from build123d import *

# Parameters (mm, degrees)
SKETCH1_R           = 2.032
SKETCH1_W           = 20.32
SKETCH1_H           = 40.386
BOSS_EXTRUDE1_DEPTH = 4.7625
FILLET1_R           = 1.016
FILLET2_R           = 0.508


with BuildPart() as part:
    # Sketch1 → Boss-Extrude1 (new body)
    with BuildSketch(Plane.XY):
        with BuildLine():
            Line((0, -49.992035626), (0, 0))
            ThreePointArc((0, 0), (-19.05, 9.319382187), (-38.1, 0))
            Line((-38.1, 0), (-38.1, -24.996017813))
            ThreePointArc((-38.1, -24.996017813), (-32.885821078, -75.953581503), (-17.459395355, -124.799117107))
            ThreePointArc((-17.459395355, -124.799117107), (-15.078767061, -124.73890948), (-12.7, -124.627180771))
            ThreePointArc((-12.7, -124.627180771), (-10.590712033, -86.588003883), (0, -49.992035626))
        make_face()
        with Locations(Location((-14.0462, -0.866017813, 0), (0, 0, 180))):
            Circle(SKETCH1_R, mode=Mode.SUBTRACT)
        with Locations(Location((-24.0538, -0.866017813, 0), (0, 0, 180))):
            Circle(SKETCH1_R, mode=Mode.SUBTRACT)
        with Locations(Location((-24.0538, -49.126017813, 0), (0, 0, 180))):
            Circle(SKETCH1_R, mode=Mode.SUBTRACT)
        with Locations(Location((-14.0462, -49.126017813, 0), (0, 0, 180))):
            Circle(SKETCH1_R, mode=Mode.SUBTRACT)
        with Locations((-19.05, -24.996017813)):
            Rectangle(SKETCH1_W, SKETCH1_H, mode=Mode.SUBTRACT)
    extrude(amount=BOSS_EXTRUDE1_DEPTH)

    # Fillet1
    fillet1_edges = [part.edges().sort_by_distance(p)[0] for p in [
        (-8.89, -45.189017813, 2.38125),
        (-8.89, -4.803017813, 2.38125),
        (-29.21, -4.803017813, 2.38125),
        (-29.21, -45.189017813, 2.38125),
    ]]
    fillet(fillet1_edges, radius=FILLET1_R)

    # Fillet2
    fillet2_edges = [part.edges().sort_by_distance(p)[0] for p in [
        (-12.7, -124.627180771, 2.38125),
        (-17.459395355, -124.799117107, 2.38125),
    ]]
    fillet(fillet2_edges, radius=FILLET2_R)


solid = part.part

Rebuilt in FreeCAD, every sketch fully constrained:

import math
import FreeCAD as App
import Part
import Sketcher
Q = App.Units.Quantity


def edges_at(feature, points):
    """Names of the edges that pass closest to the given points."""
    edges = feature.Shape.Edges
    near = lambda p: min(range(len(edges)), key=lambda i: edges[i].distToShape(Part.Vertex(*p))[0])
    return sorted({f"Edge{near(p) + 1}" for p in points})

doc = App.newDocument("Part")
body = doc.addObject("PartDesign::Body", "Body")

sketch1 = doc.addObject("Sketcher::SketchObject", "Sketch")
body.addObject(sketch1)
sketch1.AttachmentSupport = (doc.XY_Plane, [""])
sketch1.MapMode = "FlatFace"
sketch1.addGeometry(Part.LineSegment(App.Vector(0, -50, 0), App.Vector(0, 0, 0)), False)
sketch1.addGeometry(Part.ArcOfCircle(Part.Circle(App.Vector(-19.1, -14.8, 0), App.Vector(0, 0, 1), 24.1), math.radians(38), math.radians(142)), False)
sketch1.addGeometry(Part.LineSegment(App.Vector(-38.1, 0, 0), App.Vector(-38.1, -25, 0)), False)
sketch1.addGeometry(Part.ArcOfCircle(Part.Circle(App.Vector(213.5, -25, 0), App.Vector(0, 0, 1), 251.6), math.radians(180), math.radians(203)), False)
sketch1.addGeometry(Part.ArcOfCircle(Part.Circle(App.Vector(-19.1, -14.8, 0), App.Vector(0, 0, 1), 110), math.radians(-89.17), math.radians(-86.69)), False)
sketch1.addGeometry(Part.ArcOfCircle(Part.Circle(App.Vector(155.7, -114.9, 0), App.Vector(0, 0, 1), 168.7), math.radians(157), math.radians(183)), False)
sketch1.addGeometry(Part.Circle(App.Vector(-24.1, -49.1, 0), App.Vector(0, 0, 1), 2), False)
sketch1.addGeometry(Part.LineSegment(App.Vector(-8.9, -45.2, 0), App.Vector(-29.2, -45.2, 0)), False)
sketch1.addGeometry(Part.LineSegment(App.Vector(-29.2, -45.2, 0), App.Vector(-29.2, -4.8, 0)), False)
sketch1.addGeometry(Part.LineSegment(App.Vector(-29.2, -4.8, 0), App.Vector(-8.9, -4.8, 0)), False)
sketch1.addGeometry(Part.LineSegment(App.Vector(-8.9, -4.8, 0), App.Vector(-8.9, -45.2, 0)), False)
sketch1.addGeometry(Part.Circle(App.Vector(-14, -49.1, 0), App.Vector(0, 0, 1), 2), False)
sketch1.addGeometry(Part.Circle(App.Vector(-24.1, -0.9, 0), App.Vector(0, 0, 1), 2), False)
sketch1.addGeometry(Part.Circle(App.Vector(-14, -0.9, 0), App.Vector(0, 0, 1), 2), False)
sketch1.addConstraint(Sketcher.Constraint("Coincident", 0, 2, 1, 1))
sketch1.addConstraint(Sketcher.Constraint("Coincident", 1, 2, 2, 1))
sketch1.addConstraint(Sketcher.Constraint("Tangent", 2, 2, 3, 1))
sketch1.addConstraint(Sketcher.Constraint("Coincident", 3, 2, 4, 1))
sketch1.addConstraint(Sketcher.Constraint("Coincident", 4, 2, 5, 2))
sketch1.addConstraint(Sketcher.Constraint("Coincident", 5, 1, 0, 1))
sketch1.addConstraint(Sketcher.Constraint("Coincident", 7, 2, 8, 1))
sketch1.addConstraint(Sketcher.Constraint("Coincident", 8, 2, 9, 1))
sketch1.addConstraint(Sketcher.Constraint("Coincident", 9, 2, 10, 1))
sketch1.addConstraint(Sketcher.Constraint("Coincident", 10, 2, 7, 1))
sketch1.addConstraint(Sketcher.Constraint("Vertical", 0))
sketch1.addConstraint(Sketcher.Constraint("Vertical", 2))
sketch1.addConstraint(Sketcher.Constraint("Horizontal", 7))
sketch1.addConstraint(Sketcher.Constraint("Vertical", 8))
sketch1.addConstraint(Sketcher.Constraint("Horizontal", 9))
sketch1.addConstraint(Sketcher.Constraint("Vertical", 10))
sketch1.addConstraint(Sketcher.Constraint("Coincident", 0, 2, -1, 1))
sketch1.addConstraint(Sketcher.Constraint("Coincident", 4, 3, 1, 3))
sketch1.addConstraint(Sketcher.Constraint("Equal", 6, 11))
sketch1.addConstraint(Sketcher.Constraint("Equal", 11, 12))
sketch1.addConstraint(Sketcher.Constraint("Equal", 12, 13))
sketch1.addConstraint(Sketcher.Constraint("PointOnObject", 1, 2, -1))
sketch1.addConstraint(Sketcher.Constraint("Horizontal", 6, 3, 11, 3))
sketch1.addConstraint(Sketcher.Constraint("Horizontal", 12, 3, 13, 3))
sketch1.addConstraint(Sketcher.Constraint("Vertical", 6, 3, 12, 3))
sketch1.addConstraint(Sketcher.Constraint("Vertical", 11, 3, 13, 3))
sketch1.addConstraint(Sketcher.Constraint("Diameter", 6, Q("0.16 in")))
sketch1.addConstraint(Sketcher.Constraint("Radius", 1, Q("0.95 in")))
sketch1.addConstraint(Sketcher.Constraint("DistanceX", 7, 2, 7, 1, Q("0.8 in")))
sketch1.addConstraint(Sketcher.Constraint("DistanceX", 2, 2, 4, 2, Q("1 in")))
sketch1.addConstraint(Sketcher.Constraint("DistanceY", 8, 1, 8, 2, Q("1.59 in")))
sketch1.addConstraint(Sketcher.Constraint("DistanceX", 1, 2, -1, 1, Q("1.5 in")))
sketch1.addConstraint(Sketcher.Constraint("DistanceY", 6, 3, 12, 3, Q("1.9 in")))
sketch1.addConstraint(Sketcher.Constraint("DistanceX", 7, 2, 1, 3, Q("0.4 in")))
sketch1.addConstraint(Sketcher.Constraint("DistanceY", 6, 3, 3, 3, Q("0.95 in")))
sketch1.addConstraint(Sketcher.Constraint("DistanceX", 6, 3, -1, 1, Q("0.947 in")))
sketch1.addConstraint(Sketcher.Constraint("DistanceX", 11, 3, -1, 1, Q("0.553 in")))
sketch1.addConstraint(Sketcher.Constraint("Radius", 3, 251.608259))
sketch1.addConstraint(Sketcher.Constraint("DistanceY", 3, 3, 1, 3, Q("0.401 in")))
sketch1.addConstraint(Sketcher.Constraint("DistanceY", 6, 3, 7, 2, Q("0.155 in")))
sketch1.addConstraint(Sketcher.Constraint("Radius", 4, 110.000002))
sketch1.addConstraint(Sketcher.Constraint("Radius", 5, 168.705247))
sketch1.addConstraint(Sketcher.Constraint("DistanceY", 0, 1, 0, 2, 49.992036))
pad1 = doc.addObject("PartDesign::Pad", "Pad")
body.addObject(pad1)
pad1.Profile = sketch1
pad1.Length = Q("0.1875 in")
doc.recompute()

fillet = doc.addObject("PartDesign::Fillet", "Fillet")
body.addObject(fillet)
fillet.Base = (pad1, edges_at(pad1, [
    (-8.89, -45.189, 2.381),
    (-8.89, -4.803, 2.381),
    (-29.21, -4.803, 2.381),
    (-29.21, -45.189, 2.381),
]))
fillet.Radius = Q("0.04 in")
doc.recompute()

fillet2 = doc.addObject("PartDesign::Fillet", "Fillet001")
body.addObject(fillet2)
fillet2.Base = (fillet, edges_at(fillet, [(-12.7, -124.627, 2.381), (-17.459, -124.799, 2.381)]))
fillet2.Radius = Q("0.02 in")

doc.recompute()
